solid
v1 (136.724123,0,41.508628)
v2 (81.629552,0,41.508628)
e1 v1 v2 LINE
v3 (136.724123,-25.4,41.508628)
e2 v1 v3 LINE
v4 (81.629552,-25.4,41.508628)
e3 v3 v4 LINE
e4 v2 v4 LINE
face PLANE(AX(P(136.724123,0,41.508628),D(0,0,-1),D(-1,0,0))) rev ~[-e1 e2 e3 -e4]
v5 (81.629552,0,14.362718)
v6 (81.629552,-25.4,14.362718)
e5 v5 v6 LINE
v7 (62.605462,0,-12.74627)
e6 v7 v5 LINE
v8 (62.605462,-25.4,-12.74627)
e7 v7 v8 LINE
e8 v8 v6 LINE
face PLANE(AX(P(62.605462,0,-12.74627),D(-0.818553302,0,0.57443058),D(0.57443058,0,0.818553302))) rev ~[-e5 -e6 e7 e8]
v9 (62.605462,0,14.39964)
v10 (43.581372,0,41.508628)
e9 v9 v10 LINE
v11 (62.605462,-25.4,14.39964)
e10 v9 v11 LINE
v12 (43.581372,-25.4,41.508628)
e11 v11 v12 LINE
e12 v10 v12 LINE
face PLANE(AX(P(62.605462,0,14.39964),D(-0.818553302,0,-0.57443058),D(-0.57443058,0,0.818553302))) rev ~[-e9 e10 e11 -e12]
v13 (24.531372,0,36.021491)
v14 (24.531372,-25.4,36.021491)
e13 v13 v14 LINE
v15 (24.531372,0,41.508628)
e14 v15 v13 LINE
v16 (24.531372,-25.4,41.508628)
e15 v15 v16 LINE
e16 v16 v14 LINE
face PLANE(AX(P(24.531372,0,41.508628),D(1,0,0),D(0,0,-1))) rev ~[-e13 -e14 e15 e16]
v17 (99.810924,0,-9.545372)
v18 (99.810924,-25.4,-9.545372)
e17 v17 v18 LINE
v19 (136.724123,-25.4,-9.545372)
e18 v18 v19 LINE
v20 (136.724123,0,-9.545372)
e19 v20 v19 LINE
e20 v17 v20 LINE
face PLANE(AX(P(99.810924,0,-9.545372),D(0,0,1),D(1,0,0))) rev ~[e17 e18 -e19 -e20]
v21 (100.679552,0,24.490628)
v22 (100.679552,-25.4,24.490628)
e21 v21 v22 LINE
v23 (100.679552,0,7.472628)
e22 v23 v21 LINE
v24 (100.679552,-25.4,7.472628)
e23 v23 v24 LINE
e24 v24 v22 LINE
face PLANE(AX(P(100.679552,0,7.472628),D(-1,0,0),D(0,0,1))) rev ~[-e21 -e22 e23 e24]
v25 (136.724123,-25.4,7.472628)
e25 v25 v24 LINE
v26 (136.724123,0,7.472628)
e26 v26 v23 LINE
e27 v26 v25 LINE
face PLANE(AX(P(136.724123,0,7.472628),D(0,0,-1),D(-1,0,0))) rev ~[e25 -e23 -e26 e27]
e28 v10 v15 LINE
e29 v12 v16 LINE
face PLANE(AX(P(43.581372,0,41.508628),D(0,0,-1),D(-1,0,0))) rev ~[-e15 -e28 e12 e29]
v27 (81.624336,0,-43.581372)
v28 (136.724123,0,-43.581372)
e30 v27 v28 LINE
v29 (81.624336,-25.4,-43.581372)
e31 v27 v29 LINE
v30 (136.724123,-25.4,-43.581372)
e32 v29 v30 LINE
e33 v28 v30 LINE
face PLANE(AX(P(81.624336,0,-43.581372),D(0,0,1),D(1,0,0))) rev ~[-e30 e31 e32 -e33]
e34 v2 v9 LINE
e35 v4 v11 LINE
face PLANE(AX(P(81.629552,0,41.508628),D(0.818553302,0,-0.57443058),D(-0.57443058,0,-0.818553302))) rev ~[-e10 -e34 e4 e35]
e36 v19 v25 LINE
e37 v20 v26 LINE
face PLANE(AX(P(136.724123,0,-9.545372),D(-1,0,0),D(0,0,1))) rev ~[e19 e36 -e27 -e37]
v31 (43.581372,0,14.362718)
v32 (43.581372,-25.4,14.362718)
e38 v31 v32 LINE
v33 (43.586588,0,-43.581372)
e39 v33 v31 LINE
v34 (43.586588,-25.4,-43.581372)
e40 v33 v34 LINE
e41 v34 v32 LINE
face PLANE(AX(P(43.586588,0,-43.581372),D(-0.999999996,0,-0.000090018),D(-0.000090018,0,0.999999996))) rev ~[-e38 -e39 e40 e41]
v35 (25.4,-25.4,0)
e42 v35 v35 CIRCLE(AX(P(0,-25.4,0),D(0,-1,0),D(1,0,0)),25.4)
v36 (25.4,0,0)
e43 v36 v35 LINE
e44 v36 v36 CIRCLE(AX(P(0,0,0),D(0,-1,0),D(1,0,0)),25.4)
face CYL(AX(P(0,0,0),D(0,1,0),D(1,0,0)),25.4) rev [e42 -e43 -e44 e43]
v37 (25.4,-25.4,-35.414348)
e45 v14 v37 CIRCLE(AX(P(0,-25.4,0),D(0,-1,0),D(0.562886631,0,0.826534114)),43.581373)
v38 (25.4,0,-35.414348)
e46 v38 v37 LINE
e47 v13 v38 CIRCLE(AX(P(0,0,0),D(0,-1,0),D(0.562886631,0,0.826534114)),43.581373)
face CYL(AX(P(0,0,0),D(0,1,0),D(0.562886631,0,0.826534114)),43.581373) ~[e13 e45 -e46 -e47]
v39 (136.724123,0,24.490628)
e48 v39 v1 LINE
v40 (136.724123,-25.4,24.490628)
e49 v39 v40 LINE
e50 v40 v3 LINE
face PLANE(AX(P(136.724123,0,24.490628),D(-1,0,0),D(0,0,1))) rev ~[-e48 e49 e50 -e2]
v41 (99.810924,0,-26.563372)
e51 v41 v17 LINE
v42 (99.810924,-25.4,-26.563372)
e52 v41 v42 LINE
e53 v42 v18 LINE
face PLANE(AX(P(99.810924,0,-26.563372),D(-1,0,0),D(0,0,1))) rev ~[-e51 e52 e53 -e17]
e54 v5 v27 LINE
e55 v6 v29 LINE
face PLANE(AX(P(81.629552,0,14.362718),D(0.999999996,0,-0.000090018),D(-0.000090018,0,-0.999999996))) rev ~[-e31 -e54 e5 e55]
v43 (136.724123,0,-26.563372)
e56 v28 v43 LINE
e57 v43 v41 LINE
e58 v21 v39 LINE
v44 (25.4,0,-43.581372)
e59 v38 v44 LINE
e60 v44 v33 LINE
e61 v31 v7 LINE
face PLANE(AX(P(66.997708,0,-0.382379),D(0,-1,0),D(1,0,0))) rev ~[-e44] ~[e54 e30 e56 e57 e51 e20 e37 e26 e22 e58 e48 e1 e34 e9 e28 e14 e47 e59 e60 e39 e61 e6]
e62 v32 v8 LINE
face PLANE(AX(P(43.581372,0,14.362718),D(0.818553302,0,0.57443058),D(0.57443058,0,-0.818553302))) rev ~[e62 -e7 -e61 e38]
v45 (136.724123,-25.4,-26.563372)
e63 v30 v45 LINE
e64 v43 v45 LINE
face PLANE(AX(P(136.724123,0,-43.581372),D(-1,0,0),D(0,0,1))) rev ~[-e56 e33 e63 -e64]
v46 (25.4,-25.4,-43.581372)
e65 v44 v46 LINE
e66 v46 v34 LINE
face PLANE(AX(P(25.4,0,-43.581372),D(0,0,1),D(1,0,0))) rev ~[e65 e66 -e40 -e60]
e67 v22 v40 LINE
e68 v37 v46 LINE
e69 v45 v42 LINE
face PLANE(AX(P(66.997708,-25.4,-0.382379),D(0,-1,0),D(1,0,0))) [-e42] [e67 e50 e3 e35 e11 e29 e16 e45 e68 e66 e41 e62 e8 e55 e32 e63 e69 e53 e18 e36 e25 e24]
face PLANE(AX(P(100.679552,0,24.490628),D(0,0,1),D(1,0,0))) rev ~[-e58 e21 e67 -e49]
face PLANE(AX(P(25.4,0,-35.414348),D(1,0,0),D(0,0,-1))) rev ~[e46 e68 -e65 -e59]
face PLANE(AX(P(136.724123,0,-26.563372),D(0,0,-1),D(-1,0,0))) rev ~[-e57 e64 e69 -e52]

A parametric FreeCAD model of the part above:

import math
import FreeCAD as App
import Part
import Sketcher

V = App.Vector
Q = App.Units.Quantity

doc = App.newDocument("Part")
params = doc.addObject("Spreadsheet::Sheet", "Params")
for row, (alias, value) in enumerate([
    ("sketch1_diameter", "2 in"),
    ("sketch1_width", "0.75 in"),
    ("sketch1_height", "0.67 in"),
    ("pad1_length", "1 in"),
], start=1):
    params.set(f"A{row}", alias)
    params.set(f"B{row}", "=" + value)
    params.setAlias(f"B{row}", alias)

body = doc.addObject("PartDesign::Body", "Body")

# Sketch on XZ plane
sketch1 = doc.addObject("Sketcher::SketchObject", "Sketch")
body.addObject(sketch1)
sketch1.AttachmentSupport = (doc.XZ_Plane, [""])
sketch1.MapMode = "FlatFace"
sketch1.addGeometry([
    Part.LineSegment(V(25, 42, 0), V(25, 36, 0)),  # 0
    Part.ArcOfCircle(Part.Circle(V(0, 0, 0), V(0, 0, 1), 44), math.radians(56), math.radians(306)),  # 1
    Part.LineSegment(V(25, -35, 0), V(25, -44, 0)),  # 2
    Part.LineSegment(V(25, -44, 0), V(44, -44, 0)),  # 3
    Part.LineSegment(V(44, -44, 0), V(44, 14, 0)),  # 4
    Part.LineSegment(V(44, 14, 0), V(63, -13, 0)),  # 5
    Part.LineSegment(V(63, -13, 0), V(82, 14, 0)),  # 6
    Part.LineSegment(V(82, 14, 0), V(82, -44, 0)),  # 7
    Part.LineSegment(V(82, -44, 0), V(137, -44, 0)),  # 8
    Part.LineSegment(V(137, -44, 0), V(137, -27, 0)),  # 9
    Part.LineSegment(V(137, -27, 0), V(100, -27, 0)),  # 10
    Part.LineSegment(V(100, -27, 0), V(100, -10, 0)),  # 11
    Part.LineSegment(V(100, -10, 0), V(137, -10, 0)),  # 12
    Part.LineSegment(V(137, -10, 0), V(137, 7, 0)),  # 13
    Part.LineSegment(V(137, 7, 0), V(101, 7, 0)),  # 14
    Part.LineSegment(V(101, 7, 0), V(101, 24, 0)),  # 15
    Part.LineSegment(V(101, 24, 0), V(137, 24, 0)),  # 16
    Part.LineSegment(V(137, 24, 0), V(137, 42, 0)),  # 17
    Part.LineSegment(V(137, 42, 0), V(82, 42, 0)),  # 18
    Part.LineSegment(V(82, 42, 0), V(63, 14, 0)),  # 19
    Part.LineSegment(V(63, 14, 0), V(44, 42, 0)),  # 20
    Part.LineSegment(V(44, 42, 0), V(25, 42, 0)),  # 21
    Part.Circle(V(0, 0, 0), V(0, 0, 1), 25),  # 22
], False)
sketch1.addConstraint([
    Sketcher.Constraint("Coincident", 0, 2, 1, 1),
    Sketcher.Constraint("Coincident", 1, 2, 2, 1),
    Sketcher.Constraint("Coincident", 2, 2, 3, 1),
    Sketcher.Constraint("Coincident", 3, 2, 4, 1),
    Sketcher.Constraint("Coincident", 4, 2, 5, 1),
    Sketcher.Constraint("Coincident", 5, 2, 6, 1),
    Sketcher.Constraint("Coincident", 6, 2, 7, 1),
    Sketcher.Constraint("Coincident", 7, 2, 8, 1),
    Sketcher.Constraint("Coincident", 8, 2, 9, 1),
    Sketcher.Constraint("Coincident", 9, 2, 10, 1),
    Sketcher.Constraint("Coincident", 10, 2, 11, 1),
    Sketcher.Constraint("Coincident", 11, 2, 12, 1),
    Sketcher.Constraint("Coincident", 12, 2, 13, 1),
    Sketcher.Constraint("Coincident", 13, 2, 14, 1),
    Sketcher.Constraint("Coincident", 14, 2, 15, 1),
    Sketcher.Constraint("Coincident", 15, 2, 16, 1),
    Sketcher.Constraint("Coincident", 16, 2, 17, 1),
    Sketcher.Constraint("Coincident", 17, 2, 18, 1),
    Sketcher.Constraint("Coincident", 18, 2, 19, 1),
    Sketcher.Constraint("Coincident", 19, 2, 20, 1),
    Sketcher.Constraint("Coincident", 20, 2, 21, 1),
    Sketcher.Constraint("Coincident", 21, 2, 0, 1),
    Sketcher.Constraint("Vertical", 0),
    Sketcher.Constraint("Vertical", 2),
    Sketcher.Constraint("Horizontal", 3),
    Sketcher.Constraint("Horizontal", 8),
    Sketcher.Constraint("Vertical", 9),
    Sketcher.Constraint("Horizontal", 10),
    Sketcher.Constraint("Vertical", 11),
    Sketcher.Constraint("Horizontal", 12),
    Sketcher.Constraint("Vertical", 13),
    Sketcher.Constraint("Horizontal", 14),
    Sketcher.Constraint("Vertical", 15),
    Sketcher.Constraint("Horizontal", 16),
    Sketcher.Constraint("Vertical", 17),
    Sketcher.Constraint("Horizontal", 18),
    Sketcher.Constraint("Horizontal", 21),
    Sketcher.Constraint("Coincident", 1, 3, -1, 1),
    Sketcher.Constraint("Coincident", 22, 3, -1, 1),
    Sketcher.Constraint("Parallel", 6, 19),
    Sketcher.Constraint("Parallel", 5, 20),
    Sketcher.Constraint("Horizontal", 4, 2, 6, 2),
    Sketcher.Constraint("Horizontal", 3, 2, 7, 2),
    Sketcher.Constraint("Horizontal", 18, 2, 20, 2),
    Sketcher.Constraint("Vertical", 9, 2, 12, 2),
    Sketcher.Constraint("Vertical", 13, 2, 16, 2),
    Sketcher.Constraint("Vertical", 6, 2, 18, 2),
    Sketcher.Constraint("Vertical", 5, 2, 19, 2),
    Sketcher.Constraint("Equal", 9, 11),
    Sketcher.Constraint("Equal", 11, 13),
    Sketcher.Constraint("Equal", 13, 15),
    Sketcher.Constraint("Equal", 15, 17),
    Sketcher.Constraint("Equal", 5, 6),
    Sketcher.Constraint("Diameter", 22, Q("2 in")),
    Sketcher.Constraint("DistanceX", -1, 1, 1, 2, Q("1 in")),
    Sketcher.Constraint("DistanceX", 21, 2, 21, 1, Q("0.75 in")),
    Sketcher.Constraint("DistanceY", 9, 1, 9, 2, Q("0.67 in")),
    Sketcher.Constraint("DistanceX", 6, 2, 14, 2, Q("0.75 in")),
    Sketcher.Constraint("DistanceX", 10, 2, 10, 1, Q("36.913199 mm")),
    Sketcher.Constraint("Radius", 1, Q("43.581373 mm")),
    Sketcher.Constraint("DistanceX", 3, 1, 3, 2, Q("18.186588 mm")),
    Sketcher.Constraint("DistanceX", 14, 2, 14, 1, Q("36.044571 mm")),
    Sketcher.Constraint("DistanceY", 3, 2, 5, 2, Q("30.835102 mm")),
    Sketcher.Constraint("Distance", 4, Q("57.94409 mm")),
    Sketcher.Constraint("Distance", 5, Q("33.118171 mm")),
    Sketcher.Constraint("DistanceX", 8, 1, 8, 2, Q("55.099787 mm")),
    Sketcher.Constraint("DistanceY", 0, 2, 0, 1, Q("5.487137 mm")),
    Sketcher.Constraint("DistanceY", 2, 2, 2, 1, Q("8.167024 mm")),
])
sketch1.setExpression("Constraints[53]", "Params.sketch1_diameter")
sketch1.setExpression("Constraints[55]", "Params.sketch1_width")
sketch1.setExpression("Constraints[56]", "Params.sketch1_height")
pad1 = doc.addObject("PartDesign::Pad", "Pad")
body.addObject(pad1)
pad1.Profile = sketch1
pad1.setExpression("Length", "Params.pad1_length")

doc.recompute()
